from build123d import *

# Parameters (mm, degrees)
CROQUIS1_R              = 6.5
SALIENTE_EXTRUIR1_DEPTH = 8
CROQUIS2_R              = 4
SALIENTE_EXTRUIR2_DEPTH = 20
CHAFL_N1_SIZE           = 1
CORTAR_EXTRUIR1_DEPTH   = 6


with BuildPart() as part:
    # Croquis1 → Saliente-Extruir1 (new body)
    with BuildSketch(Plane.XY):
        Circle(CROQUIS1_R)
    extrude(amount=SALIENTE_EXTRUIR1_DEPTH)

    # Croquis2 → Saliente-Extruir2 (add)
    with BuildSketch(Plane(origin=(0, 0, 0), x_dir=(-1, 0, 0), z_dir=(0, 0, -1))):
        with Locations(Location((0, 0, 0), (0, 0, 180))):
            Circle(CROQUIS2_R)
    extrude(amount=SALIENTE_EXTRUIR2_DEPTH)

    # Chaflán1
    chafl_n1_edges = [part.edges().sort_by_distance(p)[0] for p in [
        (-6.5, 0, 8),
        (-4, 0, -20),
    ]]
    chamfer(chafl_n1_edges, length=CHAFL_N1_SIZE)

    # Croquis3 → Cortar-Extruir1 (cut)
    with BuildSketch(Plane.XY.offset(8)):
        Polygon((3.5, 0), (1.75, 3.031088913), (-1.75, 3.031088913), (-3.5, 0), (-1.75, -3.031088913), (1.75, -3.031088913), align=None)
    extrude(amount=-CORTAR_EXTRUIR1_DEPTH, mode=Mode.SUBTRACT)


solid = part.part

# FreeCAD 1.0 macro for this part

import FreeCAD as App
import Part
import Sketcher
from FreeCAD import Vector
Q = App.Units.Quantity


def edges_at(feature, points):
    """Names of the edges that pass closest to the given points."""
    edges = feature.Shape.Edges
    near = lambda p: min(range(len(edges)), key=lambda i: edges[i].distToShape(Part.Vertex(*p))[0])
    return sorted({f"Edge{near(p) + 1}" for p in points})

doc = App.newDocument("Part")
body = doc.addObject("PartDesign::Body", "Body")

# Sketch on XY plane
sketch1 = body.newObject("Sketcher::SketchObject", "Sketch")
sketch1.AttachmentSupport = (doc.getObject("XY_Plane"), [""])
sketch1.MapMode = "FlatFace"
sketch1.addGeometry(Part.Circle(Vector(0, 0, 0), Vector(0, 0, 1), 6), False)
sketch1.addConstraint([
    Sketcher.Constraint("Coincident", 0, 3, -1, 1),
    Sketcher.Constraint("Diameter", 0, 13.0),
])
pad1 = body.newObject("PartDesign::Pad", "Pad")
pad1.Profile = sketch1
pad1.Length = 8

# Sketch on XY plane
sketch2 = body.newObject("Sketcher::SketchObject", "Sketch001")
sketch2.AttachmentSupport = (doc.getObject("XY_Plane"), [""])
sketch2.MapMode = "FlatFace"
sketch2.addGeometry(Part.Circle(Vector(0, 0, 0), Vector(0, 0, 1), 4), False)
sketch2.addConstraint([
    Sketcher.Constraint("Coincident", 0, 3, -1, 1),
    Sketcher.Constraint("Diameter", 0, 8.0),
])
pad2 = body.newObject("PartDesign::Pad", "Pad001")
pad2.Profile = sketch2
pad2.Length = 20
pad2.Reversed = True
doc.recompute()

chamfer = body.newObject("PartDesign::Chamfer", "Chamfer")
chamfer.Base = (pad2, edges_at(pad2, [(-6.5, 0, 8), (-4, 0, -20)]))
chamfer.Size = 1

# Sketch on XY plane
sketch3 = body.newObject("Sketcher::SketchObject", "Sketch002")
sketch3.AttachmentSupport = (doc.getObject("XY_Plane"), [""])
sketch3.MapMode = "FlatFace"
sketch3.AttachmentOffset = App.Placement(Vector(0, 0, 8), App.Rotation())
sketch3.addGeometry([
    Part.LineSegment(Vector(3.5, 0, 0), Vector(1.8, 3, 0)),  # 0
    Part.LineSegment(Vector(1.8, 3, 0), Vector(-1.8, 3, 0)),  # 1
    Part.LineSegment(Vector(-1.8, 3, 0), Vector(-3.5, 0, 0)),  # 2
    Part.LineSegment(Vector(-3.5, 0, 0), Vector(-1.8, -3, 0)),  # 3
    Part.LineSegment(Vector(-1.8, -3, 0), Vector(1.8, -3, 0)),  # 4
    Part.LineSegment(Vector(1.8, -3, 0), Vector(3.5, 0, 0)),  # 5
], False)
sketch3.addConstraint([
    Sketcher.Constraint("Coincident", 0, 2, 1, 1),
    Sketcher.Constraint("Coincident", 1, 2, 2, 1),
    Sketcher.Constraint("Coincident", 2, 2, 3, 1),
    Sketcher.Constraint("Coincident", 3, 2, 4, 1),
    Sketcher.Constraint("Coincident", 4, 2, 5, 1),
    Sketcher.Constraint("Coincident", 5, 2, 0, 1),
    Sketcher.Constraint("Horizontal", 1),
    Sketcher.Constraint("Horizontal", 4),
    Sketcher.Constraint("Symmetric", 0, 2, 3, 2, -1, 1),
    Sketcher.Constraint("Symmetric", 2, 2, 5, 2, -1, 1),
    Sketcher.Constraint("PointOnObject", 2, 2, -1),
    Sketcher.Constraint("Parallel", 2, 5),
    Sketcher.Constraint("Vertical", 1, 2, 3, 2),
    Sketcher.Constraint("Angle", 0, Q("120 deg")),
    Sketcher.Constraint("DistanceX", 1, 2, 1, 1, 3.5),
    Sketcher.Constraint("DistanceX", 2, 2, 5, 2, 7.0),
])
pocket1 = body.newObject("PartDesign::Pocket", "Pocket")
pocket1.Profile = sketch3
pocket1.Length = 6

doc.recompute()
